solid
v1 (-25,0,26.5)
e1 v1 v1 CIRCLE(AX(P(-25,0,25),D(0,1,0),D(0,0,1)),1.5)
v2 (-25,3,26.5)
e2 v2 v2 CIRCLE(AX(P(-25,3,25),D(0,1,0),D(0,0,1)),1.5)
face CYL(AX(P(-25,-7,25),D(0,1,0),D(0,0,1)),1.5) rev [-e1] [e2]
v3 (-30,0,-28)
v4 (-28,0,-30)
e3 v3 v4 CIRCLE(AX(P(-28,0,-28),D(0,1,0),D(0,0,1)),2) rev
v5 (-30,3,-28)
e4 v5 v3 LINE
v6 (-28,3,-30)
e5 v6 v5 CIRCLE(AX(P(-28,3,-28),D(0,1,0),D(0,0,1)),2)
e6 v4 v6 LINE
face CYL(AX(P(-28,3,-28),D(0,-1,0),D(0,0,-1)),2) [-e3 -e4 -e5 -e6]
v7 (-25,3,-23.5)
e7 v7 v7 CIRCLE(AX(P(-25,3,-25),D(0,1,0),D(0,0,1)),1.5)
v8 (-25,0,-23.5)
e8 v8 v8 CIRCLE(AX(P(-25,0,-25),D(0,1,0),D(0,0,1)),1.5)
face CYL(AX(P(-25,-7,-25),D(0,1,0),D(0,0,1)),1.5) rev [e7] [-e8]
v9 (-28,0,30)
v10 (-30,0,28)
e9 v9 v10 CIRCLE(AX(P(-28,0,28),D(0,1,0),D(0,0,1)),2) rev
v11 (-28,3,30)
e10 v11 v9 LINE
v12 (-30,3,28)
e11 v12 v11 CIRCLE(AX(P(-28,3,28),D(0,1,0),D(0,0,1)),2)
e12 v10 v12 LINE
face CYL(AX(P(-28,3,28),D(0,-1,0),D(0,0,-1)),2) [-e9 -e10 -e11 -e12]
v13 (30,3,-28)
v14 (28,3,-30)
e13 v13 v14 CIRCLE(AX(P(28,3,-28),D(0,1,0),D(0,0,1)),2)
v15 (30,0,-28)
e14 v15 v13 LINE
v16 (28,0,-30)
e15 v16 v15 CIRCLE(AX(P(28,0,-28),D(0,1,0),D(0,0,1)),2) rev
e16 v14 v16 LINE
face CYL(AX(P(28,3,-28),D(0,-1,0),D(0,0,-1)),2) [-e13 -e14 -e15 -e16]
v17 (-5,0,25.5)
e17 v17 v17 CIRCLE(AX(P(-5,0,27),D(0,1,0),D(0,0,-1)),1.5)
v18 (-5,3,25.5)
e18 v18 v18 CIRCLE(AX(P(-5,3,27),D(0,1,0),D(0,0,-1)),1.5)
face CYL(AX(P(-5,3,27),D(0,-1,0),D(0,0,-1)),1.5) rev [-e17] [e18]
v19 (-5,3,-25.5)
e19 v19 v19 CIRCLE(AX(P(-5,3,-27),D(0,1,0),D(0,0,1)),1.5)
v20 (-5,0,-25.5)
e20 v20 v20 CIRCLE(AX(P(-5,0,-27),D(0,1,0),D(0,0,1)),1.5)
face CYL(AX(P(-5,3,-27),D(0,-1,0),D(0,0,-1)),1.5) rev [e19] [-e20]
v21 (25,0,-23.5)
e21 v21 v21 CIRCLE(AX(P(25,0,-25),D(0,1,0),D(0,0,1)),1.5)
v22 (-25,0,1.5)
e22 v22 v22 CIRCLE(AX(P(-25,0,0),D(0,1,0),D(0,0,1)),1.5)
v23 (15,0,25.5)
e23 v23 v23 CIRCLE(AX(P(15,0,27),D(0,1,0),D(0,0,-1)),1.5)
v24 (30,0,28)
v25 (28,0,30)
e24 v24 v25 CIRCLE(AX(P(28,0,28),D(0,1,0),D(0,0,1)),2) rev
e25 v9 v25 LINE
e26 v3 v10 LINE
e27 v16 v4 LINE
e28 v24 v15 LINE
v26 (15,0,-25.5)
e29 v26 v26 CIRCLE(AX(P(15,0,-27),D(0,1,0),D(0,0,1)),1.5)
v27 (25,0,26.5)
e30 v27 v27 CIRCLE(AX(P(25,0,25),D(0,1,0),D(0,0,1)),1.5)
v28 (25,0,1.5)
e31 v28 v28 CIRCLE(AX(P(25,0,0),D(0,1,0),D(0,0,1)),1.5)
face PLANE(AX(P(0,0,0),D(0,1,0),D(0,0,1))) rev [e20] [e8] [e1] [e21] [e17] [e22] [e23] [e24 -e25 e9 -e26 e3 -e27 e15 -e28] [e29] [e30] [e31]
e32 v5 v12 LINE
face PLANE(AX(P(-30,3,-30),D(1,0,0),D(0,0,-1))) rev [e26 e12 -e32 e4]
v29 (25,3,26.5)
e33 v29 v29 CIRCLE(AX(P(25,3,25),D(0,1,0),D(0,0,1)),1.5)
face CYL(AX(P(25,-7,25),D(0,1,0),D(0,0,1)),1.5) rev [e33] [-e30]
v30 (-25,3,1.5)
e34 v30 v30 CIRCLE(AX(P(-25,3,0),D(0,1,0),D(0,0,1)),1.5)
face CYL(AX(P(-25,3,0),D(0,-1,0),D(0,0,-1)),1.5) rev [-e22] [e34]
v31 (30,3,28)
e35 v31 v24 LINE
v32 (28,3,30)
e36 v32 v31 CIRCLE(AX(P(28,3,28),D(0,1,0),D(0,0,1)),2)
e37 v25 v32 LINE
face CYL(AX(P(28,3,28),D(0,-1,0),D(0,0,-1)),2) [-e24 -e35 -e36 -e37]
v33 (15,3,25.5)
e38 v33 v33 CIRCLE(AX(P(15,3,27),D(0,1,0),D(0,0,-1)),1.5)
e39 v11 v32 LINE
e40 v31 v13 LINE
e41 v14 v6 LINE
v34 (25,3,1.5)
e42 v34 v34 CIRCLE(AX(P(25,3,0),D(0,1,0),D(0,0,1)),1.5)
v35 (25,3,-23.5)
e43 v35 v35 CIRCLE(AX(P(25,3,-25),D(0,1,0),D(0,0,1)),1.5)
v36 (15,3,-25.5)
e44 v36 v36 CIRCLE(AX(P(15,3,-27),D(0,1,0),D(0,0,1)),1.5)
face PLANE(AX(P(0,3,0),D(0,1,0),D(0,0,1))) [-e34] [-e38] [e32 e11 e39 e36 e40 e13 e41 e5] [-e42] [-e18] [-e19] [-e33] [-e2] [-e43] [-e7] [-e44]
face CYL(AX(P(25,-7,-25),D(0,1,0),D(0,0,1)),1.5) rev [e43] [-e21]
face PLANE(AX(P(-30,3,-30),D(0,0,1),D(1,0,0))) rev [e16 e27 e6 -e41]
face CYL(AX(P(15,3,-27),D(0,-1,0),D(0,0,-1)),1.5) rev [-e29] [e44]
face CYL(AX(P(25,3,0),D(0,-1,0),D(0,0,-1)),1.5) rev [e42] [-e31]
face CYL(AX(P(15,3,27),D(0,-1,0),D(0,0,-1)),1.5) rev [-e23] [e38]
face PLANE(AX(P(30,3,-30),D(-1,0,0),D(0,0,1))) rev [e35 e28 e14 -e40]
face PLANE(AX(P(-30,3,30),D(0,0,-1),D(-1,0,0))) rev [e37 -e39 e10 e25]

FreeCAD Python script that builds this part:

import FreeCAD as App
import Part
import Sketcher
Q = App.Units.Quantity


def edges_at(feature, points):
    """Names of the edges that pass closest to the given points."""
    edges = feature.Shape.Edges
    near = lambda p: min(range(len(edges)), key=lambda i: edges[i].distToShape(Part.Vertex(*p))[0])
    return sorted({f"Edge{near(p) + 1}" for p in points})

doc = App.newDocument("Part")
body = doc.addObject("PartDesign::Body", "Body")

sketch1 = body.newObject("Sketcher::SketchObject", "Sketch")
sketch1.AttachmentSupport = (doc.getObject("XZ_Plane"), [""])
sketch1.MapMode = "FlatFace"
sketch1.addGeometry(Part.LineSegment(App.Vector(-30, -30, 0), App.Vector(-30, 30, 0)), False)
sketch1.addGeometry(Part.LineSegment(App.Vector(-30, 30, 0), App.Vector(30, 30, 0)), False)
sketch1.addGeometry(Part.LineSegment(App.Vector(30, 30, 0), App.Vector(30, -30, 0)), False)
sketch1.addGeometry(Part.LineSegment(App.Vector(30, -30, 0), App.Vector(-30, -30, 0)), False)
sketch1.addGeometry(Part.Circle(App.Vector(-5, 27, 0), App.Vector(0, 0, 1), 1.5), False)
sketch1.addGeometry(Part.Circle(App.Vector(15, 27, 0), App.Vector(0, 0, 1), 1.5), False)
sketch1.addGeometry(Part.Circle(App.Vector(-25, 0, 0), App.Vector(0, 0, 1), 1.5), False)
sketch1.addGeometry(Part.Circle(App.Vector(-5, -27, 0), App.Vector(0, 0, 1), 1.5), False)
sketch1.addGeometry(Part.Circle(App.Vector(25, 0, 0), App.Vector(0, 0, 1), 1.5), False)
sketch1.addGeometry(Part.Circle(App.Vector(15, -27, 0), App.Vector(0, 0, 1), 1.5), False)
sketch1.addConstraint(Sketcher.Constraint("Coincident", 0, 2, 1, 1))
sketch1.addConstraint(Sketcher.Constraint("Coincident", 1, 2, 2, 1))
sketch1.addConstraint(Sketcher.Constraint("Coincident", 2, 2, 3, 1))
sketch1.addConstraint(Sketcher.Constraint("Coincident", 3, 2, 0, 1))
sketch1.addConstraint(Sketcher.Constraint("Vertical", 0))
sketch1.addConstraint(Sketcher.Constraint("Horizontal", 1))
sketch1.addConstraint(Sketcher.Constraint("Vertical", 2))
sketch1.addConstraint(Sketcher.Constraint("Horizontal", 3))
sketch1.addConstraint(Sketcher.Constraint("Equal", 4, 5))
sketch1.addConstraint(Sketcher.Constraint("Equal", 5, 6))
sketch1.addConstraint(Sketcher.Constraint("Equal", 6, 7))
sketch1.addConstraint(Sketcher.Constraint("Equal", 7, 8))
sketch1.addConstraint(Sketcher.Constraint("Equal", 8, 9))
sketch1.addConstraint(Sketcher.Constraint("Symmetric", 6, 3, 8, 3, -1, 1))
sketch1.addConstraint(Sketcher.Constraint("Symmetric", 0, 2, 2, 2, -1, 1))
sketch1.addConstraint(Sketcher.Constraint("Symmetric", 4, 3, 7, 3, -1))
sketch1.addConstraint(Sketcher.Constraint("Symmetric", 5, 3, 9, 3, -1))
sketch1.addConstraint(Sketcher.Constraint("PointOnObject", 6, 3, -1))
sketch1.addConstraint(Sketcher.Constraint("Horizontal", 4, 3, 5, 3))
sketch1.addConstraint(Sketcher.Constraint("Equal", 3, 0))
sketch1.addConstraint(Sketcher.Constraint("Diameter", 4, Q("3 mm")))
sketch1.addConstraint(Sketcher.Constraint("DistanceX", 1, 1, 1, 2, Q("60 mm")))
sketch1.addConstraint(Sketcher.Constraint("DistanceX", 4, 3, -1, 1, Q("5 mm")))
sketch1.addConstraint(Sketcher.Constraint("DistanceY", -1, 1, 4, 3, Q("27 mm")))
sketch1.addConstraint(Sketcher.Constraint("DistanceX", -1, 1, 5, 3, Q("15 mm")))
sketch1.addConstraint(Sketcher.Constraint("DistanceX", 6, 3, -1, 1, Q("25 mm")))
pad1 = body.newObject("PartDesign::Pad", "Pad")
pad1.Profile = sketch1
pad1.Length = 3
pad1.Reversed = True

sketch2 = body.newObject("Sketcher::SketchObject", "Sketch001")
sketch2.AttachmentSupport = (doc.getObject("XZ_Plane"), [""])
sketch2.MapMode = "FlatFace"
sketch2.AttachmentOffset = App.Placement(App.Vector(0, 0, -3), App.Rotation())
sketch2.addGeometry(Part.Circle(App.Vector(-25, -25, 0), App.Vector(0, 0, 1), 1.5), False)
sketch2.addGeometry(Part.Circle(App.Vector(25, -25, 0), App.Vector(0, 0, 1), 1.5), False)
sketch2.addGeometry(Part.Circle(App.Vector(-25, 25, 0), App.Vector(0, 0, 1), 1.5), False)
sketch2.addGeometry(Part.Circle(App.Vector(25, 25, 0), App.Vector(0, 0, 1), 1.5), False)
sketch2.addConstraint(Sketcher.Constraint("Equal", 0, 1))
sketch2.addConstraint(Sketcher.Constraint("Equal", 1, 2))
sketch2.addConstraint(Sketcher.Constraint("Equal", 2, 3))
sketch2.addConstraint(Sketcher.Constraint("Symmetric", 1, 3, 2, 3, -1, 1))
sketch2.addConstraint(Sketcher.Constraint("Symmetric", 0, 3, 3, 3, -1, 1))
sketch2.addConstraint(Sketcher.Constraint("Symmetric", 0, 3, 1, 3, -2))
sketch2.addConstraint(Sketcher.Constraint("Diameter", 0, Q("3 mm")))
sketch2.addConstraint(Sketcher.Constraint("DistanceX", 0, 3, -1, 1, Q("25 mm")))
sketch2.addConstraint(Sketcher.Constraint("DistanceY", 0, 3, -1, 1, Q("25 mm")))
pocket1 = body.newObject("PartDesign::Pocket", "Pocket")
pocket1.Profile = sketch2
pocket1.Length = 10
pocket1.Reversed = True
doc.recompute()

fillet = body.newObject("PartDesign::Fillet", "Fillet")
fillet.Base = (pocket1, edges_at(pocket1, [
    (30, 1.5, 30),
    (-30, 1.5, 30),
    (-30, 1.5, -30),
    (30, 1.5, -30),
]))
fillet.Radius = 2

doc.recompute()
